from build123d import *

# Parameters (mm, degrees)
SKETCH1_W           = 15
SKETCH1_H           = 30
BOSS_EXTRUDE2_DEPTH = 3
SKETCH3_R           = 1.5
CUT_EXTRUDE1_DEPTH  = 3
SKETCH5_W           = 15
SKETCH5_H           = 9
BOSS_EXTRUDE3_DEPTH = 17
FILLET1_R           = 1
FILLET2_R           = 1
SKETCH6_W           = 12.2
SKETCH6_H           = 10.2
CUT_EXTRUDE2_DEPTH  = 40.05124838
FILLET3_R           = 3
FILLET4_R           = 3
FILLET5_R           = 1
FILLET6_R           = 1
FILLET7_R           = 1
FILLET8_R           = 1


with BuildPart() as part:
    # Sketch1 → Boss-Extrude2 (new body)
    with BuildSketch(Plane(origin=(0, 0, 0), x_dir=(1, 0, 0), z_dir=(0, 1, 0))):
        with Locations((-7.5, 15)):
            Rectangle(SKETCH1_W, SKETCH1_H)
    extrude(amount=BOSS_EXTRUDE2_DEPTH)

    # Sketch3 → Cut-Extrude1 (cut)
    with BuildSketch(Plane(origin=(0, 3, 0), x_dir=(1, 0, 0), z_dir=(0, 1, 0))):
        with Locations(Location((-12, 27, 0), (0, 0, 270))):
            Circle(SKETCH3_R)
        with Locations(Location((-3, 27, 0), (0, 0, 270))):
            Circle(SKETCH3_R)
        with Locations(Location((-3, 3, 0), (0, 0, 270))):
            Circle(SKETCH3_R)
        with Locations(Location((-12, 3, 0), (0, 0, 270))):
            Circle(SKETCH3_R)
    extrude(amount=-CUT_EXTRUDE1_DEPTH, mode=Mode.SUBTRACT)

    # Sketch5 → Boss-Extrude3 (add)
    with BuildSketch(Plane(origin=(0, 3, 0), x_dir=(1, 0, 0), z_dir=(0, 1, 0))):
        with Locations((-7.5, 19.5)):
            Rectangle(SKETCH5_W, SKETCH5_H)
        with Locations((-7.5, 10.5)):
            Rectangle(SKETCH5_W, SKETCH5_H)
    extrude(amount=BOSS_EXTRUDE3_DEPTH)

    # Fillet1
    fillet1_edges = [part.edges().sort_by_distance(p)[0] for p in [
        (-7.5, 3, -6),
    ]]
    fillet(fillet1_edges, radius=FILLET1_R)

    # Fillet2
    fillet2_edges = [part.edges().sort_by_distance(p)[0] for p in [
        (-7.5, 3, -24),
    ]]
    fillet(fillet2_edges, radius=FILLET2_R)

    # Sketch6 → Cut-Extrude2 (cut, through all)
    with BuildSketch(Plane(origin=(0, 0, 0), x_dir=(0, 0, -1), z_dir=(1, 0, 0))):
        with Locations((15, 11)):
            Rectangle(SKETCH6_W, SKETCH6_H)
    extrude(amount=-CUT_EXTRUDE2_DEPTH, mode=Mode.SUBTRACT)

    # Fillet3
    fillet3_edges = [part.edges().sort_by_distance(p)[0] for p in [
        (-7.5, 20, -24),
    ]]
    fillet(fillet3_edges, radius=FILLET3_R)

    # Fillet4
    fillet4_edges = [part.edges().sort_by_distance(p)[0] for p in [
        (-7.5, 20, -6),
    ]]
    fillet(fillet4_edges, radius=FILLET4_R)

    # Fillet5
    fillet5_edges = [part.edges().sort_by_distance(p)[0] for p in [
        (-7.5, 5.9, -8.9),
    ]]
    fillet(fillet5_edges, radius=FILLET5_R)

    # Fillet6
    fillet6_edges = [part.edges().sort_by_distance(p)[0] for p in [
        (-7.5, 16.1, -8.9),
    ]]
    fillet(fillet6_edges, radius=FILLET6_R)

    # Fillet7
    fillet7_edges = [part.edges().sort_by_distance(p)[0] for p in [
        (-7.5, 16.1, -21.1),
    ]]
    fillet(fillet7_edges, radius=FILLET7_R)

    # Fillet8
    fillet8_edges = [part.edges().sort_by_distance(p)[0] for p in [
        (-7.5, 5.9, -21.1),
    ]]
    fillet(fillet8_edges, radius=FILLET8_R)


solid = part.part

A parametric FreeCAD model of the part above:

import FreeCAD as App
import Part
import Sketcher
from FreeCAD import Vector
Q = App.Units.Quantity


def edges_at(feature, points):
    """Names of the edges that pass closest to the given points."""
    edges = feature.Shape.Edges
    near = lambda p: min(range(len(edges)), key=lambda i: edges[i].distToShape(Part.Vertex(*p))[0])
    return sorted({f"Edge{near(p) + 1}" for p in points})


def add_polygon(sketch, points):
    """Adds a closed chain of lines whose ends are joined by coincident constraints."""
    first, n = sketch.GeometryCount, len(points)
    for a, b in zip(points, points[1:] + points[:1]):
        sketch.addGeometry(Part.LineSegment(App.Vector(*a, 0), App.Vector(*b, 0)), False)
    for i in range(n):
        sketch.addConstraint(Sketcher.Constraint("Coincident", first + i, 2, first + (i + 1) % n, 1))

doc = App.newDocument("Part")
params = doc.addObject("Spreadsheet::Sheet", "Params")
for row, (alias, value) in enumerate([
    ("sketch1_width", "15 mm"),
    ("sketch1_height", "30 mm"),
    ("pad1_length", "3 mm"),
    ("sketch2_diameter", "3 mm"),
    ("pocket1_length", "3 mm"),
    ("sketch3_width", "15 mm"),
    ("sketch3_height", "18 mm"),
    ("pad2_length", "17 mm"),
    ("fillet_radius", "1 mm"),
    ("fillet2_radius", "1 mm"),
    ("sketch4_width", "10.2 mm"),
    ("sketch4_height", "12.2 mm"),
    ("fillet3_radius", "3 mm"),
    ("fillet4_radius", "3 mm"),
    ("fillet5_radius", "1 mm"),
    ("fillet6_radius", "1 mm"),
    ("fillet7_radius", "1 mm"),
    ("fillet8_radius", "1 mm"),
], start=1):
    params.set(f"A{row}", alias)
    params.set(f"B{row}", "=" + value)
    params.setAlias(f"B{row}", alias)

body = doc.addObject("PartDesign::Body", "Body")

sketch1 = body.newObject("Sketcher::SketchObject", "Sketch")
sketch1.AttachmentSupport = (doc.getObject("XZ_Plane"), [""])
sketch1.MapMode = "FlatFace"
add_polygon(sketch1, [(-15, -30), (-15, 0), (0, 0), (0, -30)])
sketch1.addConstraint([
    Sketcher.Constraint("Vertical", 0),
    Sketcher.Constraint("Horizontal", 1),
    Sketcher.Constraint("Vertical", 2),
    Sketcher.Constraint("Horizontal", 3),
    Sketcher.Constraint("Coincident", 1, 2, -1, 1),
    Sketcher.Constraint("DistanceX", 1, 1, 1, 2, Q("15 mm")),
    Sketcher.Constraint("DistanceY", 0, 1, 0, 2, Q("30 mm")),
])
sketch1.setExpression("Constraints[9]", "Params.sketch1_width")
sketch1.setExpression("Constraints[10]", "Params.sketch1_height")
pad1 = body.newObject("PartDesign::Pad", "Pad")
pad1.Profile = sketch1
pad1.setExpression("Length", "Params.pad1_length")
pad1.Reversed = True

sketch2 = body.newObject("Sketcher::SketchObject", "Sketch001")
sketch2.AttachmentSupport = (doc.getObject("XZ_Plane"), [""])
sketch2.MapMode = "FlatFace"
sketch2.AttachmentOffset = App.Placement(Vector(0, 0, -3), App.Rotation())
sketch2.addGeometry([
    Part.Circle(Vector(-12, -27, 0), Vector(0, 0, 1), 1.5),
    Part.Circle(Vector(-3, -27, 0), Vector(0, 0, 1), 1.5),
    Part.Circle(Vector(-3, -3, 0), Vector(0, 0, 1), 1.5),
    Part.Circle(Vector(-12, -3, 0), Vector(0, 0, 1), 1.5),
], False)
sketch2.addConstraint([
    Sketcher.Constraint("Equal", 0, 1),
    Sketcher.Constraint("Equal", 1, 2),
    Sketcher.Constraint("Equal", 2, 3),
    Sketcher.Constraint("Horizontal", 0, 3, 1, 3),
    Sketcher.Constraint("Horizontal", 2, 3, 3, 3),
    Sketcher.Constraint("Vertical", 1, 3, 2, 3),
    Sketcher.Constraint("Vertical", 0, 3, 3, 3),
    Sketcher.Constraint("Diameter", 0, Q("3 mm")),
    Sketcher.Constraint("DistanceX", 0, 3, -1, 1, Q("12 mm")),
    Sketcher.Constraint("DistanceY", 0, 3, -1, 1, Q("27 mm")),
    Sketcher.Constraint("DistanceX", 1, 3, -1, 1, Q("3 mm")),
    Sketcher.Constraint("DistanceY", 2, 3, -1, 1, Q("3 mm")),
])
sketch2.setExpression("Constraints[7]", "Params.sketch2_diameter")
pocket1 = body.newObject("PartDesign::Pocket", "Pocket")
pocket1.Profile = sketch2
pocket1.setExpression("Length", "Params.pocket1_length")
pocket1.Reversed = True

sketch3 = body.newObject("Sketcher::SketchObject", "Sketch002")
sketch3.AttachmentSupport = (doc.getObject("XZ_Plane"), [""])
sketch3.MapMode = "FlatFace"
sketch3.AttachmentOffset = App.Placement(Vector(0, 0, -3), App.Rotation())
add_polygon(sketch3, [(-15, -24), (-15, -6), (0, -6), (0, -24)])
sketch3.addConstraint([
    Sketcher.Constraint("Vertical", 0),
    Sketcher.Constraint("Horizontal", 1),
    Sketcher.Constraint("Vertical", 2),
    Sketcher.Constraint("Horizontal", 3),
    Sketcher.Constraint("PointOnObject", 1, 2, -2),
    Sketcher.Constraint("DistanceX", 1, 1, 1, 2, Q("15 mm")),
    Sketcher.Constraint("DistanceY", 0, 1, 0, 2, Q("18 mm")),
    Sketcher.Constraint("DistanceY", 0, 2, -1, 1, Q("6 mm")),
])
sketch3.setExpression("Constraints[9]", "Params.sketch3_width")
sketch3.setExpression("Constraints[10]", "Params.sketch3_height")
pad2 = body.newObject("PartDesign::Pad", "Pad001")
pad2.Profile = sketch3
pad2.setExpression("Length", "Params.pad2_length")
pad2.Reversed = True
doc.recompute()

fillet = body.newObject("PartDesign::Fillet", "Fillet")
fillet.Base = (pad2, edges_at(pad2, [(-7.5, 3, -6)]))
fillet.setExpression("Radius", "Params.fillet_radius")
doc.recompute()

fillet2 = body.newObject("PartDesign::Fillet", "Fillet001")
fillet2.Base = (fillet, edges_at(fillet, [(-7.5, 3, -24)]))
fillet2.setExpression("Radius", "Params.fillet2_radius")

sketch4 = body.newObject("Sketcher::SketchObject", "Sketch003")
sketch4.AttachmentSupport = (doc.getObject("YZ_Plane"), [""])
sketch4.MapMode = "FlatFace"
add_polygon(sketch4, [(16.1, -8.9), (5.9, -8.9), (5.9, -21.1), (16.1, -21.1)])
sketch4.addConstraint([
    Sketcher.Constraint("Horizontal", 0),
    Sketcher.Constraint("Vertical", 1),
    Sketcher.Constraint("Horizontal", 2),
    Sketcher.Constraint("Vertical", 3),
    Sketcher.Constraint("DistanceX", 0, 2, 0, 1, Q("10.2 mm")),
    Sketcher.Constraint("DistanceY", 1, 2, 1, 1, Q("12.2 mm")),
    Sketcher.Constraint("DistanceX", -1, 1, 0, 2, Q("5.9 mm")),
    Sketcher.Constraint("DistanceY", 0, 2, -1, 1, Q("8.9 mm")),
])
sketch4.setExpression("Constraints[8]", "Params.sketch4_width")
sketch4.setExpression("Constraints[9]", "Params.sketch4_height")
pocket2 = body.newObject("PartDesign::Pocket", "Pocket001")
pocket2.Profile = sketch4
pocket2.Type = "ThroughAll"
doc.recompute()

fillet3 = body.newObject("PartDesign::Fillet", "Fillet002")
fillet3.Base = (pocket2, edges_at(pocket2, [(-7.5, 20, -24)]))
fillet3.setExpression("Radius", "Params.fillet3_radius")
doc.recompute()

fillet4 = body.newObject("PartDesign::Fillet", "Fillet003")
fillet4.Base = (fillet3, edges_at(fillet3, [(-7.5, 20, -6)]))
fillet4.setExpression("Radius", "Params.fillet4_radius")
doc.recompute()

fillet5 = body.newObject("PartDesign::Fillet", "Fillet004")
fillet5.Base = (fillet4, edges_at(fillet4, [(-7.5, 5.9, -8.9)]))
fillet5.setExpression("Radius", "Params.fillet5_radius")
doc.recompute()

fillet6 = body.newObject("PartDesign::Fillet", "Fillet005")
fillet6.Base = (fillet5, edges_at(fillet5, [(-7.5, 16.1, -8.9)]))
fillet6.setExpression("Radius", "Params.fillet6_radius")
doc.recompute()

fillet7 = body.newObject("PartDesign::Fillet", "Fillet006")
fillet7.Base = (fillet6, edges_at(fillet6, [(-7.5, 16.1, -21.1)]))
fillet7.setExpression("Radius", "Params.fillet7_radius")
doc.recompute()

fillet8 = body.newObject("PartDesign::Fillet", "Fillet007")
fillet8.Base = (fillet7, edges_at(fillet7, [(-7.5, 5.9, -21.1)]))
fillet8.setExpression("Radius", "Params.fillet8_radius")

doc.recompute()
